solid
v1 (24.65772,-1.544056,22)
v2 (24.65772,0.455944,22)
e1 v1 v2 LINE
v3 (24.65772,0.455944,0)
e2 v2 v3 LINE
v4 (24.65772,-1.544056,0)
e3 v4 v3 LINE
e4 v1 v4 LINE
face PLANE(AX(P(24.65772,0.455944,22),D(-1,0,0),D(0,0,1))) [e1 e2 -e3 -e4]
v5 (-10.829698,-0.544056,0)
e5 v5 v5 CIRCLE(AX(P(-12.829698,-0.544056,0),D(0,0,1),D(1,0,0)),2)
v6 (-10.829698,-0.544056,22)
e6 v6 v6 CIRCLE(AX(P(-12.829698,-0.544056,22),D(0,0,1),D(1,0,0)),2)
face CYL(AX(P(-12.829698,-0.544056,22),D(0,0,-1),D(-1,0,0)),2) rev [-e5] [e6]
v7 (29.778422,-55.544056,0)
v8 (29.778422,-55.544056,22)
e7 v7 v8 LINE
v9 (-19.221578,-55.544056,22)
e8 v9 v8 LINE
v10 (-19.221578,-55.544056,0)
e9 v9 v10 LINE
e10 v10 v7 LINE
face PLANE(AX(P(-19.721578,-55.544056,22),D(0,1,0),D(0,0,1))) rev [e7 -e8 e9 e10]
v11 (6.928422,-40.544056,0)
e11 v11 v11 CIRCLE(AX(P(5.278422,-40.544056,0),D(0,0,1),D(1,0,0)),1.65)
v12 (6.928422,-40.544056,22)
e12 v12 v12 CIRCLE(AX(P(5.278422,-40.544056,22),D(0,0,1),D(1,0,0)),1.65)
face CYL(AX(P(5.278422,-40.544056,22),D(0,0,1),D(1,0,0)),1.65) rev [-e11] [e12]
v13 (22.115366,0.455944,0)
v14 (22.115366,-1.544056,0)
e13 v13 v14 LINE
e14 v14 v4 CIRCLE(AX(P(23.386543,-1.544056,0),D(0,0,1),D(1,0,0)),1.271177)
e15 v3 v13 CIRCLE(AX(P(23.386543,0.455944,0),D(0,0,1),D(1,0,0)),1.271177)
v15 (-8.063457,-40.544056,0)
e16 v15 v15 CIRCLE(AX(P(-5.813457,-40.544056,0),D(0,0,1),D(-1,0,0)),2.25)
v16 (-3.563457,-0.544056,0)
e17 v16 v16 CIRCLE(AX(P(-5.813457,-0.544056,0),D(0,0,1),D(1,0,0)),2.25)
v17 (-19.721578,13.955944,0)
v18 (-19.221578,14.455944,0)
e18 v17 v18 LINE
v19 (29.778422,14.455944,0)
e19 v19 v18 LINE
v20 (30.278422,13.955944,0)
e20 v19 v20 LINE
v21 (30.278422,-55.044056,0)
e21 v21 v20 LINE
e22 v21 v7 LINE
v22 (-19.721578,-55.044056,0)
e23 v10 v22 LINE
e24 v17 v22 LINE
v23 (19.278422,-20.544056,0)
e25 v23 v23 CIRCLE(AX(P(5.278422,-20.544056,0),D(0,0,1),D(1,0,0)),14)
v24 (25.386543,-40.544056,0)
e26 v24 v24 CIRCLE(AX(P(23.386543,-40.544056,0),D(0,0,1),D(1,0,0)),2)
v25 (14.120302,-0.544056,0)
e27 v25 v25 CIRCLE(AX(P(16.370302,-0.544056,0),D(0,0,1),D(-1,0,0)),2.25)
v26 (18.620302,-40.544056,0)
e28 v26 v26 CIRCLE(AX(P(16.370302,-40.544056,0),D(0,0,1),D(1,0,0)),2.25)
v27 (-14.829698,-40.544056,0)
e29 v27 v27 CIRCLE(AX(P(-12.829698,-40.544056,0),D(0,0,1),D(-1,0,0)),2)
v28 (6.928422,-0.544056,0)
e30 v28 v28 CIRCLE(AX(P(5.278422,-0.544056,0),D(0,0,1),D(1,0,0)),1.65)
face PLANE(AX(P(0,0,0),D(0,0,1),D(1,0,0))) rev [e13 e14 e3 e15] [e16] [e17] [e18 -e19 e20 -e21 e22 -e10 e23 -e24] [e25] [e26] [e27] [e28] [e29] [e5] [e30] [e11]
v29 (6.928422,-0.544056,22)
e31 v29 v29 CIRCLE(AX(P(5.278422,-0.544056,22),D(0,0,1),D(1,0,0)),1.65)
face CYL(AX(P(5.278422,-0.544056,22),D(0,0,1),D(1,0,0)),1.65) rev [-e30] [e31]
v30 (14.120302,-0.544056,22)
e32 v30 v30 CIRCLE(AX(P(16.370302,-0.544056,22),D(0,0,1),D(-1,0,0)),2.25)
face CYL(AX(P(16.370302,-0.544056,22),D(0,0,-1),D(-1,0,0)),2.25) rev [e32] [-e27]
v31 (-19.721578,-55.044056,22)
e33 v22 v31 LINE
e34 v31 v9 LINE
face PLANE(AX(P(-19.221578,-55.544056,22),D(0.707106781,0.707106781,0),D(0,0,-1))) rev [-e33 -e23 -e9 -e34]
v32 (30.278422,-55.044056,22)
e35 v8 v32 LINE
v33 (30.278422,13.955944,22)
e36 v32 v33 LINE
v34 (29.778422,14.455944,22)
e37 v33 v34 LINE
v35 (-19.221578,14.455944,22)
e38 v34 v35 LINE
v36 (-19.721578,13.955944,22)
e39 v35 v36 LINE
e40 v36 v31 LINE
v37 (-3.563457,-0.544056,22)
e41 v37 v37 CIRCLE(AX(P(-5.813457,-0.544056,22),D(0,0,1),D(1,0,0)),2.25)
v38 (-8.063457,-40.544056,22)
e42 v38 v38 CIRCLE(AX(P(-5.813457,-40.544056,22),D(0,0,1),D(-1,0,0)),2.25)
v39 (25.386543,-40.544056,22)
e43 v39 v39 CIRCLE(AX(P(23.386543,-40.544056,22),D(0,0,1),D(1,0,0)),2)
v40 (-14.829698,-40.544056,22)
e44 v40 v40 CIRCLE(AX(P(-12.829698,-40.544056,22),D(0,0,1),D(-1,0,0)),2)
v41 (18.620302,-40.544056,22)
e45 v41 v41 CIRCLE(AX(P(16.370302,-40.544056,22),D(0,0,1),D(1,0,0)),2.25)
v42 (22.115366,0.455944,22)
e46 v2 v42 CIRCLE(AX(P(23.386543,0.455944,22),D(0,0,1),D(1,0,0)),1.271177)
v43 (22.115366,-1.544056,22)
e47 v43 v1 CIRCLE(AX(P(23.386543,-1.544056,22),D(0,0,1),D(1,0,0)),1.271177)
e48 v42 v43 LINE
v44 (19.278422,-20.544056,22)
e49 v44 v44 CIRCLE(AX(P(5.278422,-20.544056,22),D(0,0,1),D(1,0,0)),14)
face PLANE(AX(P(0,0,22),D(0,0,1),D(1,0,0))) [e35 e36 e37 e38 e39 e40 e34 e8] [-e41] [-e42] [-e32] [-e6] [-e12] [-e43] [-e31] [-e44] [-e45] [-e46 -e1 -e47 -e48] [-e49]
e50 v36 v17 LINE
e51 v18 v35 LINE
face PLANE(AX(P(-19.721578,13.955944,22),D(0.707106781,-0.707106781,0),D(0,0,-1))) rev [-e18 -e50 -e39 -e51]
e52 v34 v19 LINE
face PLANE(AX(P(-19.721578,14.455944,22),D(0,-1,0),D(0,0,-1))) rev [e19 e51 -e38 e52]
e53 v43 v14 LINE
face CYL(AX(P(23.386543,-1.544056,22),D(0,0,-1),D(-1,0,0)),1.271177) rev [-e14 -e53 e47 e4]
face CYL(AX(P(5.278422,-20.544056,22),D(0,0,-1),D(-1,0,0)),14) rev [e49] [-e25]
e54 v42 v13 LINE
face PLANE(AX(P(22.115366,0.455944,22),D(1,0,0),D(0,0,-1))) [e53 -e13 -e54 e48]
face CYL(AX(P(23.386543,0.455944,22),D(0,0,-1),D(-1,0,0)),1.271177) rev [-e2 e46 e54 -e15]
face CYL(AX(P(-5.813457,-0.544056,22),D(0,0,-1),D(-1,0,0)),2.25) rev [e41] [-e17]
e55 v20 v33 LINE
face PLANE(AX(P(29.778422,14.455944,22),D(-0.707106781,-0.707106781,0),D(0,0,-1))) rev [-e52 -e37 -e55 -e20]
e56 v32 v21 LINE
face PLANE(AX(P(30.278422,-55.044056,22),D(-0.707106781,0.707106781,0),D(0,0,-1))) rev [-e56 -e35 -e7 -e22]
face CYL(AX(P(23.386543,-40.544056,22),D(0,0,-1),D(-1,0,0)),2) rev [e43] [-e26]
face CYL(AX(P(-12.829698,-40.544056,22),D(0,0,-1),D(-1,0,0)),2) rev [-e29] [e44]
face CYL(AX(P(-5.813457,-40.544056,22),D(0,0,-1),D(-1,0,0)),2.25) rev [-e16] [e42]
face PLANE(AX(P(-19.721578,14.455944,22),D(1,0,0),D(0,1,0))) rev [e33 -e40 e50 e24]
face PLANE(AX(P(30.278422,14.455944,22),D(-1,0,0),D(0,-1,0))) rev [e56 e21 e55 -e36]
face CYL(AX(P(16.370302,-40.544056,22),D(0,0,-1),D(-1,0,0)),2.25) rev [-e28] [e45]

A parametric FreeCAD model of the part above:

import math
import FreeCAD as App
import Part
import Sketcher

V = App.Vector


def edges_at(feature, points):
    """Names of the edges that pass closest to the given points."""
    edges = feature.Shape.Edges
    near = lambda p: min(range(len(edges)), key=lambda i: edges[i].distToShape(Part.Vertex(*p))[0])
    return sorted({f"Edge{near(p) + 1}" for p in points})

doc = App.newDocument("Part")
body = doc.addObject("PartDesign::Body", "Body")

sketch1 = doc.addObject("Sketcher::SketchObject", "Sketch")
body.addObject(sketch1)
sketch1.AttachmentSupport = (doc.XY_Plane, [""])
sketch1.MapMode = "FlatFace"
sketch1.addGeometry(Part.LineSegment(V(-19.7, 14.5, 0), V(-19.7, -55.5, 0)), False)
sketch1.addGeometry(Part.LineSegment(V(-19.7, -55.5, 0), V(30.3, -55.5, 0)), False)
sketch1.addGeometry(Part.LineSegment(V(30.3, -55.5, 0), V(30.3, 14.5, 0)), False)
sketch1.addGeometry(Part.LineSegment(V(30.3, 14.5, 0), V(-19.7, 14.5, 0)), False)
sketch1.addGeometry(Part.Circle(V(-12.8, -40.5, 0), V(0, 0, 1), 2), False)
sketch1.addGeometry(Part.Circle(V(-5.8, -40.5, 0), V(0, 0, 1), 2.2), False)
sketch1.addGeometry(Part.Circle(V(16.4, -40.5, 0), V(0, 0, 1), 2.2), False)
sketch1.addGeometry(Part.Circle(V(23.4, -40.5, 0), V(0, 0, 1), 2), False)
sketch1.addGeometry(Part.Circle(V(5.3, -20.5, 0), V(0, 0, 1), 14), False)
sketch1.addGeometry(Part.Circle(V(-12.8, -0.5, 0), V(0, 0, 1), 2), False)
sketch1.addGeometry(Part.Circle(V(-5.8, -0.5, 0), V(0, 0, 1), 2.2), False)
sketch1.addGeometry(Part.Circle(V(16.4, -0.5, 0), V(0, 0, 1), 2.2), False)
sketch1.addGeometry(Part.LineSegment(V(22.1, -1.5, 0), V(22.1, 0.5, 0)), False)
sketch1.addGeometry(Part.ArcOfCircle(Part.Circle(V(23.4, 0.5, 0), V(0, 0, 1), 1.3), math.radians(0), math.radians(180)), False)
sketch1.addGeometry(Part.LineSegment(V(24.7, 0.5, 0), V(24.7, -1.5, 0)), False)
sketch1.addGeometry(Part.ArcOfCircle(Part.Circle(V(23.4, -1.5, 0), V(0, 0, 1), 1.3), math.radians(180), math.radians(360)), False)
sketch1.addConstraint(Sketcher.Constraint("Coincident", 0, 2, 1, 1))
sketch1.addConstraint(Sketcher.Constraint("Coincident", 1, 2, 2, 1))
sketch1.addConstraint(Sketcher.Constraint("Coincident", 2, 2, 3, 1))
sketch1.addConstraint(Sketcher.Constraint("Coincident", 3, 2, 0, 1))
sketch1.addConstraint(Sketcher.Constraint("Tangent", 12, 2, 13, 2))
sketch1.addConstraint(Sketcher.Constraint("Tangent", 13, 1, 14, 1))
sketch1.addConstraint(Sketcher.Constraint("Tangent", 14, 2, 15, 2))
sketch1.addConstraint(Sketcher.Constraint("Tangent", 15, 1, 12, 1))
sketch1.addConstraint(Sketcher.Constraint("Vertical", 0))
sketch1.addConstraint(Sketcher.Constraint("Horizontal", 1))
sketch1.addConstraint(Sketcher.Constraint("Vertical", 2))
sketch1.addConstraint(Sketcher.Constraint("Horizontal", 3))
sketch1.addConstraint(Sketcher.Constraint("Vertical", 12))
sketch1.addConstraint(Sketcher.Constraint("Vertical", 14))
sketch1.addConstraint(Sketcher.Constraint("Equal", 5, 6))
sketch1.addConstraint(Sketcher.Constraint("Equal", 4, 7))
sketch1.addConstraint(Sketcher.Constraint("Equal", 7, 9))
sketch1.addConstraint(Sketcher.Constraint("Equal", 6, 10))
sketch1.addConstraint(Sketcher.Constraint("Equal", 10, 11))
sketch1.addConstraint(Sketcher.Constraint("Horizontal", 4, 3, 5, 3))
sketch1.addConstraint(Sketcher.Constraint("Horizontal", 5, 3, 6, 3))
sketch1.addConstraint(Sketcher.Constraint("Horizontal", 6, 3, 7, 3))
sketch1.addConstraint(Sketcher.Constraint("Horizontal", 9, 3, 10, 3))
sketch1.addConstraint(Sketcher.Constraint("Horizontal", 10, 3, 11, 3))
sketch1.addConstraint(Sketcher.Constraint("Vertical", 4, 3, 9, 3))
sketch1.addConstraint(Sketcher.Constraint("Vertical", 5, 3, 10, 3))
sketch1.addConstraint(Sketcher.Constraint("Vertical", 6, 3, 11, 3))
sketch1.addConstraint(Sketcher.Constraint("Vertical", 7, 3, 13, 3))
sketch1.addConstraint(Sketcher.Constraint("Diameter", 4, 4.0))
sketch1.addConstraint(Sketcher.Constraint("Diameter", 8, 28.0))
sketch1.addConstraint(Sketcher.Constraint("Diameter", 5, 4.5))
sketch1.addConstraint(Sketcher.Constraint("DistanceX", 1, 1, 1, 2, 50.0))
sketch1.addConstraint(Sketcher.Constraint("DistanceY", 0, 2, 0, 1, 70.0))
sketch1.addConstraint(Sketcher.Constraint("DistanceY", 12, 1, 12, 2, 2.0))
sketch1.addConstraint(Sketcher.Constraint("DistanceY", 6, 3, 8, 3, 20.0))
sketch1.addConstraint(Sketcher.Constraint("DistanceY", 8, 3, 9, 3, 20.0))
sketch1.addConstraint(Sketcher.Constraint("DistanceY", 11, 3, 13, 3, 1.0))
sketch1.addConstraint(Sketcher.Constraint("DistanceY", 0, 2, 4, 3, 15.0))
sketch1.addConstraint(Sketcher.Constraint("DistanceX", 0, 2, 8, 3, 25.0))
sketch1.addConstraint(Sketcher.Constraint("DistanceX", 4, 3, 6, 3, 29.2))
sketch1.addConstraint(Sketcher.Constraint("DistanceX", 5, 3, 7, 3, 29.2))
sketch1.addConstraint(Sketcher.Constraint("Radius", 13, 1.271177))
sketch1.addConstraint(Sketcher.Constraint("DistanceX", 4, 3, -1, 1, 12.829698))
sketch1.addConstraint(Sketcher.Constraint("DistanceX", -1, 1, 13, 1, 24.65772))
sketch1.addConstraint(Sketcher.Constraint("DistanceX", 8, 3, 6, 3, 11.091879))
sketch1.addConstraint(Sketcher.Constraint("DistanceY", 4, 3, -1, 1, 40.544056))
pad1 = doc.addObject("PartDesign::Pad", "Pad")
body.addObject(pad1)
pad1.Profile = sketch1
pad1.Length = 22

sketch2 = doc.addObject("Sketcher::SketchObject", "Sketch001")
body.addObject(sketch2)
sketch2.AttachmentSupport = (doc.XY_Plane, [""])
sketch2.MapMode = "FlatFace"
sketch2.AttachmentOffset = App.Placement(V(0, 0, 22), App.Rotation())
sketch2.addGeometry(Part.Circle(V(5.3, -0.5, 0), V(0, 0, 1), 1.6), False)
sketch2.addGeometry(Part.Circle(V(5.3, -40.5, 0), V(0, 0, 1), 1.6), False)
sketch2.addConstraint(Sketcher.Constraint("Equal", 0, 1))
sketch2.addConstraint(Sketcher.Constraint("Vertical", 0, 3, 1, 3))
sketch2.addConstraint(Sketcher.Constraint("Diameter", 0, 3.3))
sketch2.addConstraint(Sketcher.Constraint("DistanceY", 1, 3, 0, 3, 40.0))
sketch2.addConstraint(Sketcher.Constraint("DistanceX", -1, 1, 0, 3, 5.278422))
sketch2.addConstraint(Sketcher.Constraint("DistanceY", 0, 3, -1, 1, 0.544056))
doc.recompute()
hole = doc.addObject("PartDesign::Hole", "Hole")
body.addObject(hole)
hole.Profile = sketch2
hole.ThreadType = "None"
hole.Diameter = 3.3
hole.DepthType = "ThroughAll"
doc.recompute()

chamfer = doc.addObject("PartDesign::Chamfer", "Chamfer")
body.addObject(chamfer)
chamfer.Base = (hole, edges_at(hole, [
    (-19.722, 14.456, 11),
    (30.278, 14.456, 11),
    (30.278, -55.544, 11),
    (-19.722, -55.544, 11),
]))
chamfer.Size = 0.5

doc.recompute()
